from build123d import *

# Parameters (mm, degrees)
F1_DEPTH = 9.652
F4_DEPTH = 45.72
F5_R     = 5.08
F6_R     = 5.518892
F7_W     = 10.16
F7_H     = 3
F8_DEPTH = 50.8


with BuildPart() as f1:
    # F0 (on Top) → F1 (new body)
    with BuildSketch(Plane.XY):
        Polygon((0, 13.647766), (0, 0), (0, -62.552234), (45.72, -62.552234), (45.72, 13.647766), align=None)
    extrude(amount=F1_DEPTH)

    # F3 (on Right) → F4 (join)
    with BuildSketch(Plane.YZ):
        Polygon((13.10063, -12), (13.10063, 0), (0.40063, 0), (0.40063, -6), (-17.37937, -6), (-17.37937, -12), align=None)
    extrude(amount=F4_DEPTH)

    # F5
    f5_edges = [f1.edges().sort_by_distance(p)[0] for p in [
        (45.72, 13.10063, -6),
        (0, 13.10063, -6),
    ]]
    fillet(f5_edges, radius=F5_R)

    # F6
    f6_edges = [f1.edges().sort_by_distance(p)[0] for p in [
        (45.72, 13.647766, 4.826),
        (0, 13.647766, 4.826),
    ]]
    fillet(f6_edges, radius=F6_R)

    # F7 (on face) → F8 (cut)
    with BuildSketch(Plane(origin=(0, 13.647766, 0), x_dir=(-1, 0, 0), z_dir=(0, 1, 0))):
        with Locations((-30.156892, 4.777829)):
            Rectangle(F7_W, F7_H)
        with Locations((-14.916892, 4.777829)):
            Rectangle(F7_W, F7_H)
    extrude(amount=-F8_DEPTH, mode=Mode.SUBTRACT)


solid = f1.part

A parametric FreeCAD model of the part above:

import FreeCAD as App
import Part
import Sketcher

V = App.Vector
Q = App.Units.Quantity


def edges_at(feature, points):
    """Names of the edges that pass closest to the given points."""
    edges = feature.Shape.Edges
    near = lambda p: min(range(len(edges)), key=lambda i: edges[i].distToShape(Part.Vertex(*p))[0])
    return sorted({f"Edge{near(p) + 1}" for p in points})


def add_polygon(sketch, points):
    """Adds a closed chain of lines whose ends are joined by coincident constraints."""
    first, n = sketch.GeometryCount, len(points)
    for a, b in zip(points, points[1:] + points[:1]):
        sketch.addGeometry(Part.LineSegment(App.Vector(*a, 0), App.Vector(*b, 0)), False)
    for i in range(n):
        sketch.addConstraint(Sketcher.Constraint("Coincident", first + i, 2, first + (i + 1) % n, 1))

doc = App.newDocument("Part")
body = doc.addObject("PartDesign::Body", "Body")

# Sketch on XY plane
sketch1 = body.newObject("Sketcher::SketchObject", "Sketch")
sketch1.AttachmentSupport = (doc.getObject("XY_Plane"), [""])
sketch1.MapMode = "FlatFace"
add_polygon(sketch1, [(0, 14), (0, -63), (46, -63), (46, 14)])  # lines 0-3
sketch1.addConstraint([
    Sketcher.Constraint("Vertical", 0),
    Sketcher.Constraint("Horizontal", 1),
    Sketcher.Constraint("Vertical", 2),
    Sketcher.Constraint("Horizontal", 3),
    Sketcher.Constraint("PointOnObject", 0, 2, -2),
    Sketcher.Constraint("DistanceY", 0, 2, 0, 1, Q("3 in")),
    Sketcher.Constraint("DistanceX", 1, 1, 1, 2, Q("1.8 in")),
    Sketcher.Constraint("DistanceY", 0, 2, -1, 1, 62.552234),
])
pad1 = body.newObject("PartDesign::Pad", "Pad")
pad1.Profile = sketch1
pad1.Length = Q("0.38 in")

# Sketch on YZ plane
sketch2 = body.newObject("Sketcher::SketchObject", "Sketch001")
sketch2.AttachmentSupport = (doc.getObject("YZ_Plane"), [""])
sketch2.MapMode = "FlatFace"
add_polygon(sketch2, [(13, -12), (13, 0), (0, 0), (0, -6), (-17, -6), (-17, -12)])  # lines 0-5
sketch2.addConstraint([
    Sketcher.Constraint("Vertical", 0),
    Sketcher.Constraint("Horizontal", 1),
    Sketcher.Constraint("Vertical", 2),
    Sketcher.Constraint("Horizontal", 3),
    Sketcher.Constraint("Vertical", 4),
    Sketcher.Constraint("Horizontal", 5),
    Sketcher.Constraint("PointOnObject", 0, 2, -1),
    Sketcher.Constraint("Equal", 2, 4),
    Sketcher.Constraint("DistanceX", 1, 2, 1, 1, Q("0.5 in")),
    Sketcher.Constraint("DistanceX", 3, 2, 3, 1, Q("0.7 in")),
    Sketcher.Constraint("DistanceY", 0, 1, 0, 2, 12.0),
    Sketcher.Constraint("DistanceX", -1, 1, 0, 2, 13.10063),
])
pad2 = body.newObject("PartDesign::Pad", "Pad001")
pad2.Profile = sketch2
pad2.Length = Q("1.8 in")
doc.recompute()

fillet = body.newObject("PartDesign::Fillet", "Fillet")
fillet.Base = (pad2, edges_at(pad2, [(45.72, 13.101, -6), (0, 13.101, -6)]))
fillet.Radius = Q("0.2 in")
doc.recompute()

fillet2 = body.newObject("PartDesign::Fillet", "Fillet001")
fillet2.Base = (fillet, edges_at(fillet, [(45.72, 13.648, 4.826), (0, 13.648, 4.826)]))
fillet2.Radius = 5.518892

# Sketch on XZ plane
sketch3 = body.newObject("Sketcher::SketchObject", "Sketch002")
sketch3.AttachmentSupport = (doc.getObject("XZ_Plane"), [""])
sketch3.MapMode = "FlatFace"
sketch3.AttachmentOffset = App.Placement(V(0, 0, -13.647766), App.Rotation())
add_polygon(sketch3, [(35.2, 6.3), (35.2, 3.3), (25.1, 3.3), (25.1, 6.3)])  # lines 0-3
add_polygon(sketch3, [(20, 6.3), (20, 3.3), (9.8, 3.3), (9.8, 6.3)])  # lines 4-7
sketch3.addConstraint([
    Sketcher.Constraint("Vertical", 0),
    Sketcher.Constraint("Horizontal", 1),
    Sketcher.Constraint("Vertical", 2),
    Sketcher.Constraint("Horizontal", 3),
    Sketcher.Constraint("Vertical", 4),
    Sketcher.Constraint("Horizontal", 5),
    Sketcher.Constraint("Vertical", 6),
    Sketcher.Constraint("Horizontal", 7),
    Sketcher.Constraint("Horizontal", 1, 2, 4, 2),
    Sketcher.Constraint("Horizontal", 3, 2, 6, 2),
    Sketcher.Constraint("Equal", 3, 5),
    Sketcher.Constraint("DistanceX", 1, 2, 1, 1, Q("0.4 in")),
    Sketcher.Constraint("DistanceX", 5, 2, 0, 2, Q("1 in")),
    Sketcher.Constraint("DistanceY", 0, 2, 0, 1, 3.0),
    Sketcher.Constraint("DistanceX", -1, 1, 0, 2, 35.236892),
    Sketcher.Constraint("DistanceY", -1, 1, 0, 2, 3.277829),
])
pocket1 = body.newObject("PartDesign::Pocket", "Pocket")
pocket1.Profile = sketch3
pocket1.Length = Q("2 in")
pocket1.Reversed = True

doc.recompute()
